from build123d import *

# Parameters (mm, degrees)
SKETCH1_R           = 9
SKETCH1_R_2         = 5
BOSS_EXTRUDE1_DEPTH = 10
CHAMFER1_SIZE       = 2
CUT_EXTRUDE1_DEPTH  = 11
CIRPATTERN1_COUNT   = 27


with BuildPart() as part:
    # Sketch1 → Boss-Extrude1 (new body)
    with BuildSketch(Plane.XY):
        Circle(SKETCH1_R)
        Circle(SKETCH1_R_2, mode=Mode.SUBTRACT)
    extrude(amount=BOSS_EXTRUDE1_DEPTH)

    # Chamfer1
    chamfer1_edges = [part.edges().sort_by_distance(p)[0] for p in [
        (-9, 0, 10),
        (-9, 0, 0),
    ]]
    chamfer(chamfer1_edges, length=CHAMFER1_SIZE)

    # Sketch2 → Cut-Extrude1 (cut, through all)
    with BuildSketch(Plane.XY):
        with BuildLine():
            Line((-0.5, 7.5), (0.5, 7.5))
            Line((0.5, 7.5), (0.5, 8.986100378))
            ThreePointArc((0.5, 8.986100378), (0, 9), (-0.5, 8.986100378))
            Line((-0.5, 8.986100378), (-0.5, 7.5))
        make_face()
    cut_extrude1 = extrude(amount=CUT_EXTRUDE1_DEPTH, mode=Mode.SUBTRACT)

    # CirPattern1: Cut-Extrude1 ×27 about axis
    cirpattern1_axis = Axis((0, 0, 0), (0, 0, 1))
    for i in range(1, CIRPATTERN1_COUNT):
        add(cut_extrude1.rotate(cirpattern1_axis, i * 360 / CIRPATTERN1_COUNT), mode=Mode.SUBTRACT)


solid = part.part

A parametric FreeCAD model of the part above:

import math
import FreeCAD as App
import Part
import Sketcher

V = App.Vector
Q = App.Units.Quantity


def edges_at(feature, points):
    """Names of the edges that pass closest to the given points."""
    edges = feature.Shape.Edges
    near = lambda p: min(range(len(edges)), key=lambda i: edges[i].distToShape(Part.Vertex(*p))[0])
    return sorted({f"Edge{near(p) + 1}" for p in points})

doc = App.newDocument("Part")
body = doc.addObject("PartDesign::Body", "Body")

# Sketch on XY plane
sketch1 = body.newObject("Sketcher::SketchObject", "Sketch")
sketch1.AttachmentSupport = (doc.getObject("XY_Plane"), [""])
sketch1.MapMode = "FlatFace"
sketch1.addGeometry([
    Part.Circle(V(0, 0, 0), V(0, 0, 1), 9),
    Part.Circle(V(0, 0, 0), V(0, 0, 1), 5),
], False)
sketch1.addConstraint([
    Sketcher.Constraint("Coincident", 0, 3, -1, 1),
    Sketcher.Constraint("Coincident", 1, 3, -1, 1),
    Sketcher.Constraint("Diameter", 0, Q("18 mm")),
    Sketcher.Constraint("Diameter", 1, Q("10 mm")),
])
pad1 = body.newObject("PartDesign::Pad", "Pad")
pad1.Profile = sketch1
pad1.Length = 10
doc.recompute()

chamfer = body.newObject("PartDesign::Chamfer", "Chamfer")
chamfer.Base = (pad1, edges_at(pad1, [(-9, 0, 10), (-9, 0, 0)]))
chamfer.Size = 2

# Sketch on XY plane
sketch2 = body.newObject("Sketcher::SketchObject", "Sketch001")
sketch2.AttachmentSupport = (doc.getObject("XY_Plane"), [""])
sketch2.MapMode = "FlatFace"
sketch2.addGeometry([
    Part.LineSegment(V(-0.5, 7.5, 0), V(0.5, 7.5, 0)),
    Part.LineSegment(V(0.5, 7.5, 0), V(0.5, 9, 0)),
    Part.ArcOfCircle(Part.Circle(V(0, 0, 0), V(0, 0, 1), 9), math.radians(86.82), math.radians(93.18)),
    Part.LineSegment(V(-0.5, 9, 0), V(-0.5, 7.5, 0)),
], False)
sketch2.addConstraint([
    Sketcher.Constraint("Coincident", 0, 2, 1, 1),
    Sketcher.Constraint("Coincident", 1, 2, 2, 1),
    Sketcher.Constraint("Coincident", 2, 2, 3, 1),
    Sketcher.Constraint("Coincident", 3, 2, 0, 1),
    Sketcher.Constraint("Horizontal", 0),
    Sketcher.Constraint("Vertical", 1),
    Sketcher.Constraint("Vertical", 3),
    Sketcher.Constraint("Coincident", 2, 3, -1, 1),
    Sketcher.Constraint("Horizontal", 1, 2, 2, 2),
    Sketcher.Constraint("Radius", 2, Q("9 mm")),
    Sketcher.Constraint("DistanceX", 0, 1, 0, 2, Q("1 mm")),
    Sketcher.Constraint("DistanceY", -1, 1, 0, 2, Q("7.5 mm")),
])
pocket1 = body.newObject("PartDesign::Pocket", "Pocket")
pocket1.Profile = sketch2
pocket1.Type = "ThroughAll"
pocket1.Reversed = True
doc.recompute()

polarpattern = body.newObject("PartDesign::PolarPattern", "PolarPattern")
polarpattern.Originals = [pocket1]
polarpattern.Axis = (doc.getObject("Z_Axis"), [""])
polarpattern.Angle = 360
polarpattern.Occurrences = 27
body.Tip = polarpattern

doc.recompute()
